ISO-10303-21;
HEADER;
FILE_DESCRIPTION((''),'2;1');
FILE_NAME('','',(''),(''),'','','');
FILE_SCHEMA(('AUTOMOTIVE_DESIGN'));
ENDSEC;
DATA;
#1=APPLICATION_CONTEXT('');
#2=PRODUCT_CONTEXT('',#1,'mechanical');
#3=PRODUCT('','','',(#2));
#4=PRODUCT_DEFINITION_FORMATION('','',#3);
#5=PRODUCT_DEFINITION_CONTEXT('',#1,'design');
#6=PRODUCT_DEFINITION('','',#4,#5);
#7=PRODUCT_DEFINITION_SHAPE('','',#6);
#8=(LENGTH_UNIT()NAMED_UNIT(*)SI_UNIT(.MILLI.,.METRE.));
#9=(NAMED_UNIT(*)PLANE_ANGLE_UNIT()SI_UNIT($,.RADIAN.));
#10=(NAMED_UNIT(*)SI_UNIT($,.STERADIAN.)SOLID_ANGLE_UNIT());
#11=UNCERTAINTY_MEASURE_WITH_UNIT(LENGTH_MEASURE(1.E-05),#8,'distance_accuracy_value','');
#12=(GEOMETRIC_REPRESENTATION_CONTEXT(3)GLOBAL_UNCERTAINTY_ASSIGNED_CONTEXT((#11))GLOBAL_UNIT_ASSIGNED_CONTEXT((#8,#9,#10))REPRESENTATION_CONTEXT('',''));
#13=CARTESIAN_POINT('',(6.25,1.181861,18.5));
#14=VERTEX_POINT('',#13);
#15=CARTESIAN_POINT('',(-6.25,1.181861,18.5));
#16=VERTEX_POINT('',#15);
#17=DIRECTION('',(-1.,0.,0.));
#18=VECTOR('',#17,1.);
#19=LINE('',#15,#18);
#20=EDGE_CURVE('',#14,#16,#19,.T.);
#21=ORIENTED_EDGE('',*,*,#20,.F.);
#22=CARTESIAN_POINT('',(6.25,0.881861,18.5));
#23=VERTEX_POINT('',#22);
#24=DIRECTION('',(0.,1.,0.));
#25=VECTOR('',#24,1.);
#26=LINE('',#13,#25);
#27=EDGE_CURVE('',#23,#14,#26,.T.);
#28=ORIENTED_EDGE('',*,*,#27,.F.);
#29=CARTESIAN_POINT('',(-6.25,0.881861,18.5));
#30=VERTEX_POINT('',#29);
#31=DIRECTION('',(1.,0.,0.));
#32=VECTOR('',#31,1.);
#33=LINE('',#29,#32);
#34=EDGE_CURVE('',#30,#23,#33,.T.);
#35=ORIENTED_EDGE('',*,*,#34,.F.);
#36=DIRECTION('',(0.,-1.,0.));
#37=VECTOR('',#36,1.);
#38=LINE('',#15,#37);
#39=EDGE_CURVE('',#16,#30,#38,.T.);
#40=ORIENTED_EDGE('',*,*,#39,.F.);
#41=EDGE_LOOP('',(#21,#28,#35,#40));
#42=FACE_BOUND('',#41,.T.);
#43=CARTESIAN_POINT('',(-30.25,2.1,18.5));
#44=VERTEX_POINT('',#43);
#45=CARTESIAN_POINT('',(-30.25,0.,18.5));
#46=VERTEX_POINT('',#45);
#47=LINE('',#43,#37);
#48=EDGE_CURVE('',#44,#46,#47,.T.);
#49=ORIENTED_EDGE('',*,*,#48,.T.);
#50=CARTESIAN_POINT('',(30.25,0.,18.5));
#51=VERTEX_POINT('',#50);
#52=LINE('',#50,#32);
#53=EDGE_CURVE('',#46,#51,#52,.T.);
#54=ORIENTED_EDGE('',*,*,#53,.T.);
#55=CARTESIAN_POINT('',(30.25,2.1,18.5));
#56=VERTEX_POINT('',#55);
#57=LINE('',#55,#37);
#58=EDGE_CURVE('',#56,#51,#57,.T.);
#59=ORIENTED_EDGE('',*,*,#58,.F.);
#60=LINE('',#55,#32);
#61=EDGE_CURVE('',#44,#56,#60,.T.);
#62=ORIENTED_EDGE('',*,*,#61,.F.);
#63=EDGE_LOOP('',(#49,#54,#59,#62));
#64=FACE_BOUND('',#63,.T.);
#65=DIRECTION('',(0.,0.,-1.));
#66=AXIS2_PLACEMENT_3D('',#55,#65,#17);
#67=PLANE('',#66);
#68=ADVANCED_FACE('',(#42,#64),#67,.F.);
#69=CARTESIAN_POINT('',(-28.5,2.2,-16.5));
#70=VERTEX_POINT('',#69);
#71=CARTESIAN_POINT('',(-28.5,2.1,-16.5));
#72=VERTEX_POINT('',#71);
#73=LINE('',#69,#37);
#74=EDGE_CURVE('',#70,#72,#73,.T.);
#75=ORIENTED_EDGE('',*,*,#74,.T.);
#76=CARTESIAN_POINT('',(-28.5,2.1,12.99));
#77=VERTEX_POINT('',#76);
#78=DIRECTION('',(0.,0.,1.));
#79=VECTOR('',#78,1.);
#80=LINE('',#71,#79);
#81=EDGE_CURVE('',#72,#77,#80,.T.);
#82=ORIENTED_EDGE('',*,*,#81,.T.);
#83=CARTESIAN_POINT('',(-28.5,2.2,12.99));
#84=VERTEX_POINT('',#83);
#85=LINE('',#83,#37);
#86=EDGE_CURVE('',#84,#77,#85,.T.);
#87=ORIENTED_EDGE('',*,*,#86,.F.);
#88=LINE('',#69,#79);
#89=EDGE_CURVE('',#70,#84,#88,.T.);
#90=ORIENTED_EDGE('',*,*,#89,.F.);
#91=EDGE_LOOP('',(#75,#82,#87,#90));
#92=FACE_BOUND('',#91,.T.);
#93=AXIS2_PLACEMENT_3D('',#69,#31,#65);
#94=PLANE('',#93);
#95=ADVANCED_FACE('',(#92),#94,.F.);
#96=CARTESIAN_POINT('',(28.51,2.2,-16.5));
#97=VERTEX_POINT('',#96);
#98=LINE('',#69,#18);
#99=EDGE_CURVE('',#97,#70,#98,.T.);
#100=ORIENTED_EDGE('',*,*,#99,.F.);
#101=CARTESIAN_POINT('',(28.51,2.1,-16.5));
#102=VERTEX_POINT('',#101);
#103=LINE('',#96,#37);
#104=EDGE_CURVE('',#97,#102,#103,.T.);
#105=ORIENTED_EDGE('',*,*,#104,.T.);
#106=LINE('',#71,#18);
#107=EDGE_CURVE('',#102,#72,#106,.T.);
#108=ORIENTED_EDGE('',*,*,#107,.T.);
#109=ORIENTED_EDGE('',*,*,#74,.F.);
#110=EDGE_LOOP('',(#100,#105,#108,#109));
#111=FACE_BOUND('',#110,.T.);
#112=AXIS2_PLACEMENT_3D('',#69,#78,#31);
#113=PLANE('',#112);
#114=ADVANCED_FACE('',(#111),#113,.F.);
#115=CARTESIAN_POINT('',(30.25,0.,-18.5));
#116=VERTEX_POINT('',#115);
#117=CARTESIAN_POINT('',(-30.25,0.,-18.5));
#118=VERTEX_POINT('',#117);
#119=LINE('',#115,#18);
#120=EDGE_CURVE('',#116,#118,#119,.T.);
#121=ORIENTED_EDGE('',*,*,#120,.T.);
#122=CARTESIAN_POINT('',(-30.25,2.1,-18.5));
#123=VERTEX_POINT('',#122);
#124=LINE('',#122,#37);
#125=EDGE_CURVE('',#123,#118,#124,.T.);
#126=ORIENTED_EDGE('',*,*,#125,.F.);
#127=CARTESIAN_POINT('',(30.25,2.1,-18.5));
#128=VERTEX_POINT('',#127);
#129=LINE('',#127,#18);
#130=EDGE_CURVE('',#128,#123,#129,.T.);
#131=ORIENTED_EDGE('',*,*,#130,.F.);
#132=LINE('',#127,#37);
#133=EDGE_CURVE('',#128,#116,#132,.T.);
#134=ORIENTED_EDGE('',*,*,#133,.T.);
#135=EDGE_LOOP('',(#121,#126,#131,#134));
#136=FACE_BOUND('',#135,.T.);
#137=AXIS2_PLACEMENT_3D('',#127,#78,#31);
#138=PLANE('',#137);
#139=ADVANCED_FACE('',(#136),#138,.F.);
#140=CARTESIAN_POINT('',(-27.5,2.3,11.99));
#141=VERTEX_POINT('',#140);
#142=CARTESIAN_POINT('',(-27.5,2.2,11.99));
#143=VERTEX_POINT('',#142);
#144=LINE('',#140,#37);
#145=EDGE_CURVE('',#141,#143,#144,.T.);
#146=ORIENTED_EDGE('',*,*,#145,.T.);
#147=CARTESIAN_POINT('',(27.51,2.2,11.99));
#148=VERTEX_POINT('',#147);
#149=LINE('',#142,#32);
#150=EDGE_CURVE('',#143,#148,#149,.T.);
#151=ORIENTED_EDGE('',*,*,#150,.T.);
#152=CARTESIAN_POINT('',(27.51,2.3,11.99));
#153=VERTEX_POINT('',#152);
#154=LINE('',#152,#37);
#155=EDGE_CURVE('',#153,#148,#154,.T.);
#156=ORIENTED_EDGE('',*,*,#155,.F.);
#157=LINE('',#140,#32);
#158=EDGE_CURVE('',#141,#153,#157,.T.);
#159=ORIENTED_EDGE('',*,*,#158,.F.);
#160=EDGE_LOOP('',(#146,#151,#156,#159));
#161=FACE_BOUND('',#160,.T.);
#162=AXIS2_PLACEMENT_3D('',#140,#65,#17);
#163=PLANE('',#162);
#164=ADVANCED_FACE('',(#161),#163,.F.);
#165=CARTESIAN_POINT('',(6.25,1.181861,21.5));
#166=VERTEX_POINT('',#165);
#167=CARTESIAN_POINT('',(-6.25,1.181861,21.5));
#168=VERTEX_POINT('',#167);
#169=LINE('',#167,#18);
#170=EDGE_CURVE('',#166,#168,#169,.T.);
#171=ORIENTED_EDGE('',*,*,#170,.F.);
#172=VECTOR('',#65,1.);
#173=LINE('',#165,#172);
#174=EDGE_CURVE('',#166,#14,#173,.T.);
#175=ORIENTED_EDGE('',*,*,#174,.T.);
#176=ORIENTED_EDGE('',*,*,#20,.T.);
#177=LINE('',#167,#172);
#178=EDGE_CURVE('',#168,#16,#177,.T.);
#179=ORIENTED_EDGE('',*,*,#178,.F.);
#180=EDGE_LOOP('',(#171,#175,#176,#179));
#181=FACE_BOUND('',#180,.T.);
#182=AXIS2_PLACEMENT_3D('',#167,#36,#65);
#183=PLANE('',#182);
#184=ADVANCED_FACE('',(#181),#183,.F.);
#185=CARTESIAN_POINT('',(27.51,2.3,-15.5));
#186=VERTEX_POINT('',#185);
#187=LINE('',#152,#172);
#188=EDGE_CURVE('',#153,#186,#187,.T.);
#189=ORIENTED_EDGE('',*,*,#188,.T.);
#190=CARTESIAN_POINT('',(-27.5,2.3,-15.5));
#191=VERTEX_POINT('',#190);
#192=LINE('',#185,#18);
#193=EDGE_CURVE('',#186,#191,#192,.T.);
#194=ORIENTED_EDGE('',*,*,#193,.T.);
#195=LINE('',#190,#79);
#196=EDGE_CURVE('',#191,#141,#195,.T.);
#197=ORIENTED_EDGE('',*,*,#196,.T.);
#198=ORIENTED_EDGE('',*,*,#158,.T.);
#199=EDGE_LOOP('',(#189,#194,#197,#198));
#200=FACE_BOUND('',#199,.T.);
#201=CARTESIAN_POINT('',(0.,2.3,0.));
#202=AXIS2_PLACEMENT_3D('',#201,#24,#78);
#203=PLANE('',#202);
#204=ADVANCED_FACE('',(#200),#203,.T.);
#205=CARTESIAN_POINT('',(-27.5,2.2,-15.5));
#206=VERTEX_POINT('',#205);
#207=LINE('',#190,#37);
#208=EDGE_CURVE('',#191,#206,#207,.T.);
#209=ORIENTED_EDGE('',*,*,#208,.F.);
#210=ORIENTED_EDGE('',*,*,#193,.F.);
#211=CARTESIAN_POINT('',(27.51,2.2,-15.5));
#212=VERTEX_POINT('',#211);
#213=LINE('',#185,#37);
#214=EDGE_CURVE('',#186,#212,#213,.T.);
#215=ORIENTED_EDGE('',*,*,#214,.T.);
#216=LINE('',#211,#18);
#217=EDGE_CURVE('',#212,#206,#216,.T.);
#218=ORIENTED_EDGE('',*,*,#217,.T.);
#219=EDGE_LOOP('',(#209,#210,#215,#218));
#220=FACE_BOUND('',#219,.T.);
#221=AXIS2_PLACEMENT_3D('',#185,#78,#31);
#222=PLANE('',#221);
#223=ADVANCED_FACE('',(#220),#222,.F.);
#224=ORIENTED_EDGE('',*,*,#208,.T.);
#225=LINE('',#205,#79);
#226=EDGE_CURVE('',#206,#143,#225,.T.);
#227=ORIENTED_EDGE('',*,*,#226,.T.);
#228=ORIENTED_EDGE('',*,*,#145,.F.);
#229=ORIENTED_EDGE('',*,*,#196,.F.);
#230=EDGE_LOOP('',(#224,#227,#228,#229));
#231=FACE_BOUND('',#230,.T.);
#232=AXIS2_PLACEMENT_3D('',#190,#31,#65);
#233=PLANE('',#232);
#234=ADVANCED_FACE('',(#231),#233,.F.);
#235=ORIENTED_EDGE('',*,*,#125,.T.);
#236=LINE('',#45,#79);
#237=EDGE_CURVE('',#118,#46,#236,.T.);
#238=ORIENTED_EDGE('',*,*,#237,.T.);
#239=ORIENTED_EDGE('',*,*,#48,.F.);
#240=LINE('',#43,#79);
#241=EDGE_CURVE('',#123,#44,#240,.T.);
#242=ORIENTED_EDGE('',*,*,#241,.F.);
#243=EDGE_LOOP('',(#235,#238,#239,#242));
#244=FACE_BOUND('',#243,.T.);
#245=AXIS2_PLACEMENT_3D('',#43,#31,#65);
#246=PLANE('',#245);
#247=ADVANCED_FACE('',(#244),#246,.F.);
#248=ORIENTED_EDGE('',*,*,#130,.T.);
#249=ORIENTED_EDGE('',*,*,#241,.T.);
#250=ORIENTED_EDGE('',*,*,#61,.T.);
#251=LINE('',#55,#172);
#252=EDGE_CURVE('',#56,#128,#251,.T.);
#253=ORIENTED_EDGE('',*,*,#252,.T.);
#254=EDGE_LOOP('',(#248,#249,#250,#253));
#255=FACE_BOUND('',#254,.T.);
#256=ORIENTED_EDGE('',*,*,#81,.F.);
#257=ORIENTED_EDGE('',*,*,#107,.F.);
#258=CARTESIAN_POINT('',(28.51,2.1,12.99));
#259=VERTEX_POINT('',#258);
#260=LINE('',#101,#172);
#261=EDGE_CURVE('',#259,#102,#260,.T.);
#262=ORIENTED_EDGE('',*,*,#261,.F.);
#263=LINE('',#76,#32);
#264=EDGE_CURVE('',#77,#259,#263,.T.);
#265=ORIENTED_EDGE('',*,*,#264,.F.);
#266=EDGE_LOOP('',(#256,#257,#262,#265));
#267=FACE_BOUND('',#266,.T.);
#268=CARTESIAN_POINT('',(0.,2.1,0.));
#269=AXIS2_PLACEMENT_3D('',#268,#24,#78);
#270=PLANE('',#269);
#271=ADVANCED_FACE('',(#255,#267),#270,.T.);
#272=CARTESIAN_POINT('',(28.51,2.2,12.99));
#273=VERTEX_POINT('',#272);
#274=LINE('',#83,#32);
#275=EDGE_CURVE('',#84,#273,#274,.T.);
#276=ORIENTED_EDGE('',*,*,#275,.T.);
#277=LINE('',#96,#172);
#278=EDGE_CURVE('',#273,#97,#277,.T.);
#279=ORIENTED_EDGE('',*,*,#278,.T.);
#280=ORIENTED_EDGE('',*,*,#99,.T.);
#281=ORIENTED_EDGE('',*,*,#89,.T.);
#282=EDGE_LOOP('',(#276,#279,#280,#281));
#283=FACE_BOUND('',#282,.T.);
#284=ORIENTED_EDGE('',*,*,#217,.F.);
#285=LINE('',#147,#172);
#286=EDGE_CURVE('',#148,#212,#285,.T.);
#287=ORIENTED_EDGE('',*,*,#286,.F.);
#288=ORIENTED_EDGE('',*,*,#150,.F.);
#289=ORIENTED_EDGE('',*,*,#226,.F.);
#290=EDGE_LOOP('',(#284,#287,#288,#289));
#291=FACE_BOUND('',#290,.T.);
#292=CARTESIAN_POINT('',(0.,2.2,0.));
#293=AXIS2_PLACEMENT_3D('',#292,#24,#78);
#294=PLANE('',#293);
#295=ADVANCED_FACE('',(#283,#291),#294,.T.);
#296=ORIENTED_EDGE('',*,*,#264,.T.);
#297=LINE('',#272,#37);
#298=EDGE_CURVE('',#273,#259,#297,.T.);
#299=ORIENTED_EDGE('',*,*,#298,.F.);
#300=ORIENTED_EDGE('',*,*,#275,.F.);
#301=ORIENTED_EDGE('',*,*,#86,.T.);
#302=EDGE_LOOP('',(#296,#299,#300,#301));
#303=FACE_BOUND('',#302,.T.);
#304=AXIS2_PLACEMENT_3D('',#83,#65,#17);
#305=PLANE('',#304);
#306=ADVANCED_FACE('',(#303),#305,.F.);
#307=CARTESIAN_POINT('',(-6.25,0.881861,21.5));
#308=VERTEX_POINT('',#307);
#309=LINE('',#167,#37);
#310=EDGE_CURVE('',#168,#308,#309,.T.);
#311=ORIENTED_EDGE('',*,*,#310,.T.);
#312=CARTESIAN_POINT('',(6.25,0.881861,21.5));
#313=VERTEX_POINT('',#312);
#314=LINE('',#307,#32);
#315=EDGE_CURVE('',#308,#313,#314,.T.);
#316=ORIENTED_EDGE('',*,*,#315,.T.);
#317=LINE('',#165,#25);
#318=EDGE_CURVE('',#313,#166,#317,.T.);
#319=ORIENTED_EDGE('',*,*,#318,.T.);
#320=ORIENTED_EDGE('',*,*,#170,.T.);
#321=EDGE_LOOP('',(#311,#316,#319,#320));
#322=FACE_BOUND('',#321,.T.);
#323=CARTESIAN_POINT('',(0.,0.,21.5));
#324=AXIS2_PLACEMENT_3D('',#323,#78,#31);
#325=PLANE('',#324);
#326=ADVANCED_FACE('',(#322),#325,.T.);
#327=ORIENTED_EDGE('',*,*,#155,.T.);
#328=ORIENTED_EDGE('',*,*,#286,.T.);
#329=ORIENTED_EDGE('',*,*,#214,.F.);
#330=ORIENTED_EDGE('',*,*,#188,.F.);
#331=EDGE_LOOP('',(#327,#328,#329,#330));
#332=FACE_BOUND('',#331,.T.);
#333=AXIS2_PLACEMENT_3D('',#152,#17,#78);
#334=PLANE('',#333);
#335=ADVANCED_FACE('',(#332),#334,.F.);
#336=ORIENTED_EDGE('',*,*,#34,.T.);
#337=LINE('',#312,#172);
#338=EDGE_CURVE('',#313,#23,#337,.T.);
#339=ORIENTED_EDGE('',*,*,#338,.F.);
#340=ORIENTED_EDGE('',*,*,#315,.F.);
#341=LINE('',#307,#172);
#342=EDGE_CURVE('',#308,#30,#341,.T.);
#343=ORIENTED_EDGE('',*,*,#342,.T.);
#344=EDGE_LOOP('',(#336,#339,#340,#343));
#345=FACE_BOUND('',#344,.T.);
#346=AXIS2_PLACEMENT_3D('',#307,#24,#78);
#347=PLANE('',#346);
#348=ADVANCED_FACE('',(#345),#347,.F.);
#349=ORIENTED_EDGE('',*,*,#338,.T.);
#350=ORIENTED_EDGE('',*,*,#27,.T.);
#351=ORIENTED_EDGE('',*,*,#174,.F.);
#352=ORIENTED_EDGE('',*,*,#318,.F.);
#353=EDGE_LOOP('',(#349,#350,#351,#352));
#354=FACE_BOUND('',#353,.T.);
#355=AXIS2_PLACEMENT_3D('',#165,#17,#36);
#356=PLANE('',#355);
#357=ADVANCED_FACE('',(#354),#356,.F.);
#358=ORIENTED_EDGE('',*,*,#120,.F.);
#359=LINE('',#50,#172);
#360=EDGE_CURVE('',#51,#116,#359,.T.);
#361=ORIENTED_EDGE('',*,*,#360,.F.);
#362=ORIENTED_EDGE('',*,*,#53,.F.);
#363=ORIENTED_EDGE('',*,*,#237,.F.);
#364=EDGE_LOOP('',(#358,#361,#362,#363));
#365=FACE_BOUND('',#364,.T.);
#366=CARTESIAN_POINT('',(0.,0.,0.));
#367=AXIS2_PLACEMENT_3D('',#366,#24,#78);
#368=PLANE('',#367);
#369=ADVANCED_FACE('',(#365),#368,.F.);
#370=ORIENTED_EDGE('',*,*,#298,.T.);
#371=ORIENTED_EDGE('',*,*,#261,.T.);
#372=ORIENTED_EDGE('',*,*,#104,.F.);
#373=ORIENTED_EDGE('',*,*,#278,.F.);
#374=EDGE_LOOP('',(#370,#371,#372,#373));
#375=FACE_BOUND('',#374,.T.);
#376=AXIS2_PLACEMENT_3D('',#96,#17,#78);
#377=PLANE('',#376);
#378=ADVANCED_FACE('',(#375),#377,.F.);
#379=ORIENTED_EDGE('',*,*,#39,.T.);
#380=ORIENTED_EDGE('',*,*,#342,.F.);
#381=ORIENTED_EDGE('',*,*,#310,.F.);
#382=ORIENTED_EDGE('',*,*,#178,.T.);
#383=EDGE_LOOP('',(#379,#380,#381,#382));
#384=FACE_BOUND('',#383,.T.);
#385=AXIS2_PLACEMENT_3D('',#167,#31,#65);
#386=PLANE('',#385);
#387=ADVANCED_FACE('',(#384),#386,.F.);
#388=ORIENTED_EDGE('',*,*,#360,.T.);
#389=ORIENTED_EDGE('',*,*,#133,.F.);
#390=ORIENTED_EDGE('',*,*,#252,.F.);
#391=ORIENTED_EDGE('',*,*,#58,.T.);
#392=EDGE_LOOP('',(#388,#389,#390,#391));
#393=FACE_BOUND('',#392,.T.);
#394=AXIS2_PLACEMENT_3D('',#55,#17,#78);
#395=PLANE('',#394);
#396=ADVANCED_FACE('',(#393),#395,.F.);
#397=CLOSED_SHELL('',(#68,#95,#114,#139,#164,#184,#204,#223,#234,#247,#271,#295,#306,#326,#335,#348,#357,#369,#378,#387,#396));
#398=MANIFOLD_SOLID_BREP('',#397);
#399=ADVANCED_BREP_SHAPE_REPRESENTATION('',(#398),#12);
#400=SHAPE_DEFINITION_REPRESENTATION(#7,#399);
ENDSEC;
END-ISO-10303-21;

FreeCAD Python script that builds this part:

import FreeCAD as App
import Part
import Sketcher


def add_polygon(sketch, points):
    """Adds a closed chain of lines whose ends are joined by coincident constraints."""
    first, n = sketch.GeometryCount, len(points)
    for a, b in zip(points, points[1:] + points[:1]):
        sketch.addGeometry(Part.LineSegment(App.Vector(*a, 0), App.Vector(*b, 0)), False)
    for i in range(n):
        sketch.addConstraint(Sketcher.Constraint("Coincident", first + i, 2, first + (i + 1) % n, 1))

doc = App.newDocument("Part")
body = doc.addObject("PartDesign::Body", "Body")

# Sketch on XZ plane
sketch1 = body.newObject("Sketcher::SketchObject", "Sketch")
sketch1.AttachmentSupport = (doc.getObject("XZ_Plane"), [""])
sketch1.MapMode = "FlatFace"
add_polygon(sketch1, [(-30, -18), (-30, 18), (30, 18), (30, -18)])  # lines 0-3
sketch1.addConstraint([
    Sketcher.Constraint("Vertical", 0),
    Sketcher.Constraint("Horizontal", 1),
    Sketcher.Constraint("Vertical", 2),
    Sketcher.Constraint("Horizontal", 3),
    Sketcher.Constraint("Symmetric", 0, 2, 2, 2, -1, 1),
    Sketcher.Constraint("DistanceY", 0, 1, 0, 2, 37.0),
    Sketcher.Constraint("DistanceX", 1, 1, 1, 2, 60.5),
])
pad1 = body.newObject("PartDesign::Pad", "Pad")
pad1.Profile = sketch1
pad1.Length = 2.1
pad1.Reversed = True

# Sketch on XZ plane
sketch2 = body.newObject("Sketcher::SketchObject", "Sketch001")
sketch2.AttachmentSupport = (doc.getObject("XZ_Plane"), [""])
sketch2.MapMode = "FlatFace"
sketch2.AttachmentOffset = App.Placement(App.Vector(0, 0, -2.1), App.Rotation())
add_polygon(sketch2, [(-28, -16), (-28, 13), (29, 13), (29, -16)])  # lines 0-3
sketch2.addConstraint([
    Sketcher.Constraint("Vertical", 0),
    Sketcher.Constraint("Horizontal", 1),
    Sketcher.Constraint("Vertical", 2),
    Sketcher.Constraint("Horizontal", 3),
    Sketcher.Constraint("DistanceX", 1, 1, 1, 2, 57.01),
    Sketcher.Constraint("DistanceY", 0, 1, 0, 2, 29.49),
    Sketcher.Constraint("DistanceX", 0, 2, -1, 1, 28.5),
    Sketcher.Constraint("DistanceY", 2, 2, -1, 1, 16.5),
])
pad2 = body.newObject("PartDesign::Pad", "Pad001")
pad2.Profile = sketch2
pad2.Length = 0.1
pad2.Reversed = True

# Sketch on XZ plane
sketch3 = body.newObject("Sketcher::SketchObject", "Sketch002")
sketch3.AttachmentSupport = (doc.getObject("XZ_Plane"), [""])
sketch3.MapMode = "FlatFace"
sketch3.AttachmentOffset = App.Placement(App.Vector(0, 0, -2.2), App.Rotation())
add_polygon(sketch3, [(-28, -16), (-28, 12), (28, 12), (28, -16)])  # lines 0-3
sketch3.addConstraint([
    Sketcher.Constraint("Vertical", 0),
    Sketcher.Constraint("Horizontal", 1),
    Sketcher.Constraint("Vertical", 2),
    Sketcher.Constraint("Horizontal", 3),
    Sketcher.Constraint("DistanceX", 1, 1, 1, 2, 55.01),
    Sketcher.Constraint("DistanceY", 0, 1, 0, 2, 27.49),
    Sketcher.Constraint("DistanceX", 0, 2, -1, 1, 27.5),
    Sketcher.Constraint("DistanceY", 2, 2, -1, 1, 15.5),
])
pad3 = body.newObject("PartDesign::Pad", "Pad002")
pad3.Profile = sketch3
pad3.Length = 0.1
pad3.Reversed = True

# Sketch on XY plane
sketch4 = body.newObject("Sketcher::SketchObject", "Sketch003")
sketch4.AttachmentSupport = (doc.getObject("XY_Plane"), [""])
sketch4.MapMode = "FlatFace"
sketch4.AttachmentOffset = App.Placement(App.Vector(0, 0, 18.5), App.Rotation())
add_polygon(sketch4, [(-6.25, 1.18), (-6.25, 0.88), (6.25, 0.88), (6.25, 1.18)])  # lines 0-3
sketch4.addConstraint([
    Sketcher.Constraint("Vertical", 0),
    Sketcher.Constraint("Horizontal", 1),
    Sketcher.Constraint("Vertical", 2),
    Sketcher.Constraint("Horizontal", 3),
    Sketcher.Constraint("DistanceX", 1, 1, 1, 2, 12.5),
    Sketcher.Constraint("DistanceY", 0, 2, 0, 1, 0.3),
    Sketcher.Constraint("DistanceX", 0, 2, -1, 1, 6.25),
    Sketcher.Constraint("DistanceY", -1, 1, 0, 2, 0.881861),
])
pad4 = body.newObject("PartDesign::Pad", "Pad003")
pad4.Profile = sketch4
pad4.Length = 3

doc.recompute()
